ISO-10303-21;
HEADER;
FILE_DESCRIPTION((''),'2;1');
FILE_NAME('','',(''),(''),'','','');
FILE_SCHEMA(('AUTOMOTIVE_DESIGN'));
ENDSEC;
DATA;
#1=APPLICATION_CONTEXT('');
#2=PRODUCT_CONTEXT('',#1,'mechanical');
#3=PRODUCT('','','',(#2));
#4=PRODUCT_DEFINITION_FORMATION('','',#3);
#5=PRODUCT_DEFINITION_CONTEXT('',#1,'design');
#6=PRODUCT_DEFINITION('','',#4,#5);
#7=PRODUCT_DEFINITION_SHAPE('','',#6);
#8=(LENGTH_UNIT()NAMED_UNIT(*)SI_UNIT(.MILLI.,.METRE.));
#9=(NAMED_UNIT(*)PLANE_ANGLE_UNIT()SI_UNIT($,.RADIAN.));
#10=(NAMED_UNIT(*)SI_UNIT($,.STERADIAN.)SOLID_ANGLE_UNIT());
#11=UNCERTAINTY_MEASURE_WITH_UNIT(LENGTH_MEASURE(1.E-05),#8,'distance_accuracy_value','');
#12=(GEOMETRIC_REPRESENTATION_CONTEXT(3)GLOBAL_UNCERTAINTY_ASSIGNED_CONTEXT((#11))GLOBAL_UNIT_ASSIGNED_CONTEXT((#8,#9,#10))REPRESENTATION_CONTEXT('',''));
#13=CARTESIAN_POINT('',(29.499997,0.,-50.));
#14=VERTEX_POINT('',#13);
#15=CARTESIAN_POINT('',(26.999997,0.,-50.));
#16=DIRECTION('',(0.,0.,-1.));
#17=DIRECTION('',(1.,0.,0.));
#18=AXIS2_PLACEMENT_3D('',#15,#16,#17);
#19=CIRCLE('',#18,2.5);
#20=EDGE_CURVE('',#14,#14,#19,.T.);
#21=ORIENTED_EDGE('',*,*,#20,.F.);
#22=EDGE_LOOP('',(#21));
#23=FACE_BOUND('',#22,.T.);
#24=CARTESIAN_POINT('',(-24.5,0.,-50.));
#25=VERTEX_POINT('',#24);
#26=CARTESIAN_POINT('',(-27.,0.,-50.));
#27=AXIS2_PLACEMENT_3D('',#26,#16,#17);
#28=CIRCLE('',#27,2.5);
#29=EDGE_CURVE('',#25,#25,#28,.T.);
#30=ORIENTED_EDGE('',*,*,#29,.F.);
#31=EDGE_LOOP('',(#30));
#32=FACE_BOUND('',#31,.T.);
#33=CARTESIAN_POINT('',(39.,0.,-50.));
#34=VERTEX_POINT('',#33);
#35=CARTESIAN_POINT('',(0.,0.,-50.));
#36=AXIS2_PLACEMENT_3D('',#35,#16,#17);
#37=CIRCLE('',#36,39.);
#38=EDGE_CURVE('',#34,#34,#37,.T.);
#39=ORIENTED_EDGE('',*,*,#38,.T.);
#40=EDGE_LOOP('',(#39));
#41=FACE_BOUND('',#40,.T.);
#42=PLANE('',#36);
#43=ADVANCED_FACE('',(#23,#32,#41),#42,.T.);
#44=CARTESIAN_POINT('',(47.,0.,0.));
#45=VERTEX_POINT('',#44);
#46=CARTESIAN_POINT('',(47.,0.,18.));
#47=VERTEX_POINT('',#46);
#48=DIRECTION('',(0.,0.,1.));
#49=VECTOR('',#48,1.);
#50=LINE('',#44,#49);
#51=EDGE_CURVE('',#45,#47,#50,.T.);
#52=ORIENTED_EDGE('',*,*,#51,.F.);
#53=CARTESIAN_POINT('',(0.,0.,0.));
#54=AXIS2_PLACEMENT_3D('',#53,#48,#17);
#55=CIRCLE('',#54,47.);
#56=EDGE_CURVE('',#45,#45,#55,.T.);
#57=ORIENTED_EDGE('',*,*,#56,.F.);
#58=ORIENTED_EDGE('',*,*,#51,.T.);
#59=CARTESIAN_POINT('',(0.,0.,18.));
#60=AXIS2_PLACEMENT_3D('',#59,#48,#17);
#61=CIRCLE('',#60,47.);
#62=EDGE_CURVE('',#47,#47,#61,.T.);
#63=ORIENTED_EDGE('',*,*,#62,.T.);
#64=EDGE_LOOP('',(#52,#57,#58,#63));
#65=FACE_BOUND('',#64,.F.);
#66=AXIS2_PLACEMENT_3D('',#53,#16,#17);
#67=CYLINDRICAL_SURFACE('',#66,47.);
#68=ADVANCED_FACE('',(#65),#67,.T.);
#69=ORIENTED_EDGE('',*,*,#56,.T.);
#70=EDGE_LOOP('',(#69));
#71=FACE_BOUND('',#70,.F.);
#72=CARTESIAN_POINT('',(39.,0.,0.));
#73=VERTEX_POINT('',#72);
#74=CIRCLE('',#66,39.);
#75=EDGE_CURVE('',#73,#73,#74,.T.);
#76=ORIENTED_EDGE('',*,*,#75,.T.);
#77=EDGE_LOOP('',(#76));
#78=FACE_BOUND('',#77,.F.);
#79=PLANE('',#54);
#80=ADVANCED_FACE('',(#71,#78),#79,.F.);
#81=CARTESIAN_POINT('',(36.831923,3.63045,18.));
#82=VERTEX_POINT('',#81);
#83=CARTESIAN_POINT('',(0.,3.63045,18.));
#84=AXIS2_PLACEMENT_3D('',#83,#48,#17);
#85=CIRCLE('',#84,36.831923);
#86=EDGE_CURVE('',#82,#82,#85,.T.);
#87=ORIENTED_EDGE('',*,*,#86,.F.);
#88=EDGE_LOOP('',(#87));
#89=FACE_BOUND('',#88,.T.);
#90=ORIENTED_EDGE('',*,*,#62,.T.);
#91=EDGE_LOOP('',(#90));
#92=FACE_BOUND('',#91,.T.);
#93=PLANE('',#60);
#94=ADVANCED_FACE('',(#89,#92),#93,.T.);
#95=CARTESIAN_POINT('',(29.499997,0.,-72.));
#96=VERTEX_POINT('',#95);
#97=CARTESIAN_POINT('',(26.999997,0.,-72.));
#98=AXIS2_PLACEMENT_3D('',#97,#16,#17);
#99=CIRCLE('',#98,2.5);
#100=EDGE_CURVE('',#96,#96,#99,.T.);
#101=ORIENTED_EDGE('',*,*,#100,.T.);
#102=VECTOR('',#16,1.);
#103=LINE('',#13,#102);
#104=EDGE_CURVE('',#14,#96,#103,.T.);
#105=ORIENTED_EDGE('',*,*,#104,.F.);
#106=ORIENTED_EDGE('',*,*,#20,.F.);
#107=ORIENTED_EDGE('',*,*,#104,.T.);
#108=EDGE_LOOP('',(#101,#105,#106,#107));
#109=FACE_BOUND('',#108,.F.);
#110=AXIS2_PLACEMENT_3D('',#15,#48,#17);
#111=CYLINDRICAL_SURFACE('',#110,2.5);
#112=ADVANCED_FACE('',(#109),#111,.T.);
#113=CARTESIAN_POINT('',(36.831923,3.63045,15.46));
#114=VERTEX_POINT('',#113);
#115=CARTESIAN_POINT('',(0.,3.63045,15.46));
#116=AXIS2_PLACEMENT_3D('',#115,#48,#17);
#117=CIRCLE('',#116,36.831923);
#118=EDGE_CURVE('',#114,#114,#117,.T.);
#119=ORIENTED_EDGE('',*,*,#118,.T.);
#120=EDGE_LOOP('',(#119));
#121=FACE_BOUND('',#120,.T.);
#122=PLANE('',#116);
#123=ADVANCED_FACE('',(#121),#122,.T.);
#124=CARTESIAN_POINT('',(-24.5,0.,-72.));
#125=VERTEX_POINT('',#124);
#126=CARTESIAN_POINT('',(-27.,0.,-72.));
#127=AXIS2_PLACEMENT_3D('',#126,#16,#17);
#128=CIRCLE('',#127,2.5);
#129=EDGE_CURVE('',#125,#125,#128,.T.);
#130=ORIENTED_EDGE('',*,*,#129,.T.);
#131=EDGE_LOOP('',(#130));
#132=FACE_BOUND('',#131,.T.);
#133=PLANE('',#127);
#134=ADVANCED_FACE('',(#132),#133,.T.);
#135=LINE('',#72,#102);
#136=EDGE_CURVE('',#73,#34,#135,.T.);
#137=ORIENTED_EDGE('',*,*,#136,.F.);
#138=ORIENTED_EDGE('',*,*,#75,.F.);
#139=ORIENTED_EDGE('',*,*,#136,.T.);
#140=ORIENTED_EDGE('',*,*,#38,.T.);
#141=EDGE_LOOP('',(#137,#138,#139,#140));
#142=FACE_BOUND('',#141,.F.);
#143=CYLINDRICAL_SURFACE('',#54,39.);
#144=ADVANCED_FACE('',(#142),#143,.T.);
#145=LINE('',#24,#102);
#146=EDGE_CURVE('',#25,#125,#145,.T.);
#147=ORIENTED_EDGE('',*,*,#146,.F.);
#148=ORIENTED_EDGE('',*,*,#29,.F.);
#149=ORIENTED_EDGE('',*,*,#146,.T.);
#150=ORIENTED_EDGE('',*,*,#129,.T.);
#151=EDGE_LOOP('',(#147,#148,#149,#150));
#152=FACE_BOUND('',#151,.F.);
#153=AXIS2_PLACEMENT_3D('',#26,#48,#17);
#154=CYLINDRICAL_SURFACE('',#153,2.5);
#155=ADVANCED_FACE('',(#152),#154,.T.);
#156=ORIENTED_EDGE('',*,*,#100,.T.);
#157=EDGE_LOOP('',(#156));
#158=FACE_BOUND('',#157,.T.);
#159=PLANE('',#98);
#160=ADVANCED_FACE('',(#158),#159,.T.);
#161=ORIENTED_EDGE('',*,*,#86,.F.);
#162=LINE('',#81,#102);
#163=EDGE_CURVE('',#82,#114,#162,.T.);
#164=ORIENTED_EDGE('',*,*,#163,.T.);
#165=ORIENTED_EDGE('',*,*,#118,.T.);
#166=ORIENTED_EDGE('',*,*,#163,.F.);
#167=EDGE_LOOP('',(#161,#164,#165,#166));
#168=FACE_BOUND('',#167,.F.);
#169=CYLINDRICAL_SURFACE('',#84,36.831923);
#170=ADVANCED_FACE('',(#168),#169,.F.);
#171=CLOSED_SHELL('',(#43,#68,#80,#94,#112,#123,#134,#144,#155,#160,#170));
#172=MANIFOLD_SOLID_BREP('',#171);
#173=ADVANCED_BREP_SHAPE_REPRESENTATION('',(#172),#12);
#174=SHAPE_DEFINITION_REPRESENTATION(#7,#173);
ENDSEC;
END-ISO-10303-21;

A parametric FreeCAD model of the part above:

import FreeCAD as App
import Part
import Sketcher

doc = App.newDocument("Part")
params = doc.addObject("Spreadsheet::Sheet", "Params")
for row, (alias, value) in enumerate([
    ("sketch1_diameter", "94 mm"),
    ("pad1_length", "18 mm"),
    ("sketch2_diameter", "78 mm"),
    ("pad2_length", "50 mm"),
    ("sketch3_diameter", "5 mm"),
    ("pad3_length", "22 mm"),
    ("pocket1_length", "2.54 mm"),
], start=1):
    params.set(f"A{row}", alias)
    params.set(f"B{row}", "=" + value)
    params.setAlias(f"B{row}", alias)

body = doc.addObject("PartDesign::Body", "Body")

# Sketch on XY plane
sketch1 = body.newObject("Sketcher::SketchObject", "Sketch")
sketch1.AttachmentSupport = (doc.getObject("XY_Plane"), [""])
sketch1.MapMode = "FlatFace"
sketch1.addGeometry(Part.Circle(App.Vector(0, 0, 0), App.Vector(0, 0, 1), 47), False)
sketch1.addConstraint([
    Sketcher.Constraint("Coincident", 0, 3, -1, 1),
    Sketcher.Constraint("Diameter", 0, 94.0),
])
sketch1.setExpression("Constraints[1]", "Params.sketch1_diameter")
pad1 = body.newObject("PartDesign::Pad", "Pad")
pad1.Profile = sketch1
pad1.setExpression("Length", "Params.pad1_length")

# Sketch on XY plane
sketch2 = body.newObject("Sketcher::SketchObject", "Sketch001")
sketch2.AttachmentSupport = (doc.getObject("XY_Plane"), [""])
sketch2.MapMode = "FlatFace"
sketch2.addGeometry(Part.Circle(App.Vector(0, 0, 0), App.Vector(0, 0, 1), 39), False)
sketch2.addConstraint([
    Sketcher.Constraint("Coincident", 0, 3, -1, 1),
    Sketcher.Constraint("Diameter", 0, 78.0),
])
sketch2.setExpression("Constraints[1]", "Params.sketch2_diameter")
pad2 = body.newObject("PartDesign::Pad", "Pad001")
pad2.Profile = sketch2
pad2.setExpression("Length", "Params.pad2_length")
pad2.Reversed = True

# Sketch on XY plane
sketch3 = body.newObject("Sketcher::SketchObject", "Sketch002")
sketch3.AttachmentSupport = (doc.getObject("XY_Plane"), [""])
sketch3.MapMode = "FlatFace"
sketch3.AttachmentOffset = App.Placement(App.Vector(0, 0, -50), App.Rotation())
sketch3.addGeometry([
    Part.Circle(App.Vector(-27, 0, 0), App.Vector(0, 0, 1), 2.5),
    Part.Circle(App.Vector(27, 0, 0), App.Vector(0, 0, 1), 2.5),
], False)
sketch3.addConstraint([
    Sketcher.Constraint("Equal", 0, 1),
    Sketcher.Constraint("Symmetric", 0, 3, 1, 3, -1, 1),
    Sketcher.Constraint("PointOnObject", 0, 3, -1),
    Sketcher.Constraint("Diameter", 0, 5.0),
    Sketcher.Constraint("DistanceX", 0, 3, -1, 1, 27.0),
])
sketch3.setExpression("Constraints[3]", "Params.sketch3_diameter")
pad3 = body.newObject("PartDesign::Pad", "Pad002")
pad3.Profile = sketch3
pad3.setExpression("Length", "Params.pad3_length")
pad3.Reversed = True

# Sketch on XY plane
sketch4 = body.newObject("Sketcher::SketchObject", "Sketch003")
sketch4.AttachmentSupport = (doc.getObject("XY_Plane"), [""])
sketch4.MapMode = "FlatFace"
sketch4.AttachmentOffset = App.Placement(App.Vector(0, 0, 18), App.Rotation())
sketch4.addGeometry(Part.Circle(App.Vector(0, 4, 0), App.Vector(0, 0, 1), 37), False)
sketch4.addConstraint([
    Sketcher.Constraint("PointOnObject", 0, 3, -2),
    Sketcher.Constraint("Diameter", 0, 73.663846),
    Sketcher.Constraint("DistanceY", -1, 1, 0, 3, 3.63045),
])
pocket1 = body.newObject("PartDesign::Pocket", "Pocket")
pocket1.Profile = sketch4
pocket1.setExpression("Length", "Params.pocket1_length")

doc.recompute()
